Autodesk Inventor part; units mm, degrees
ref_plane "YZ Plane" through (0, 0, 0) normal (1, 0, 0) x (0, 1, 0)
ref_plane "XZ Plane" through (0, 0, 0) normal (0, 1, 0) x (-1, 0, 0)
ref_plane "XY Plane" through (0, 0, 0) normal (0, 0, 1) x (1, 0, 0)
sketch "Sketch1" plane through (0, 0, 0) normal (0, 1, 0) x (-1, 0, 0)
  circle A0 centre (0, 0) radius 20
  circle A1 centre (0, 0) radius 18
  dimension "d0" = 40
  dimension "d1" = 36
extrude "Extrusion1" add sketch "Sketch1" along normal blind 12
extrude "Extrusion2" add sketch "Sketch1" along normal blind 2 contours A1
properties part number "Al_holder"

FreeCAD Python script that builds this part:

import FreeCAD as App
import Part
import Sketcher
from FreeCAD import Vector

doc = App.newDocument("Part")
body = doc.addObject("PartDesign::Body", "Body")

sketch1 = body.newObject("Sketcher::SketchObject", "Sketch")
sketch1.AttachmentSupport = (doc.getObject("XZ_Plane"), [""])
sketch1.MapMode = "FlatFace"
sketch1.addGeometry([
    Part.Circle(Vector(0, 0, 0), Vector(0, 0, 1), 20),
    Part.Circle(Vector(0, 0, 0), Vector(0, 0, 1), 18),
], False)
sketch1.addConstraint([
    Sketcher.Constraint("Coincident", 0, 3, -1, 1),
    Sketcher.Constraint("Coincident", 1, 3, -1, 1),
    Sketcher.Constraint("Diameter", 0, 40.0),
    Sketcher.Constraint("Diameter", 1, 36.0),
])
pad1 = body.newObject("PartDesign::Pad", "Pad")
pad1.Profile = sketch1
pad1.Length = 12
pad1.Reversed = True

sketch2 = body.newObject("Sketcher::SketchObject", "Sketch001")
sketch2.AttachmentSupport = (doc.getObject("XZ_Plane"), [""])
sketch2.MapMode = "FlatFace"
sketch2.addGeometry(Part.Circle(Vector(0, 0, 0), Vector(0, 0, 1), 18), False)
sketch2.addConstraint([
    Sketcher.Constraint("Coincident", 0, 3, -1, 1),
    Sketcher.Constraint("Diameter", 0, 36.0),
])
pad2 = body.newObject("PartDesign::Pad", "Pad001")
pad2.Profile = sketch2
pad2.Length = 2
pad2.Reversed = True

doc.recompute()
